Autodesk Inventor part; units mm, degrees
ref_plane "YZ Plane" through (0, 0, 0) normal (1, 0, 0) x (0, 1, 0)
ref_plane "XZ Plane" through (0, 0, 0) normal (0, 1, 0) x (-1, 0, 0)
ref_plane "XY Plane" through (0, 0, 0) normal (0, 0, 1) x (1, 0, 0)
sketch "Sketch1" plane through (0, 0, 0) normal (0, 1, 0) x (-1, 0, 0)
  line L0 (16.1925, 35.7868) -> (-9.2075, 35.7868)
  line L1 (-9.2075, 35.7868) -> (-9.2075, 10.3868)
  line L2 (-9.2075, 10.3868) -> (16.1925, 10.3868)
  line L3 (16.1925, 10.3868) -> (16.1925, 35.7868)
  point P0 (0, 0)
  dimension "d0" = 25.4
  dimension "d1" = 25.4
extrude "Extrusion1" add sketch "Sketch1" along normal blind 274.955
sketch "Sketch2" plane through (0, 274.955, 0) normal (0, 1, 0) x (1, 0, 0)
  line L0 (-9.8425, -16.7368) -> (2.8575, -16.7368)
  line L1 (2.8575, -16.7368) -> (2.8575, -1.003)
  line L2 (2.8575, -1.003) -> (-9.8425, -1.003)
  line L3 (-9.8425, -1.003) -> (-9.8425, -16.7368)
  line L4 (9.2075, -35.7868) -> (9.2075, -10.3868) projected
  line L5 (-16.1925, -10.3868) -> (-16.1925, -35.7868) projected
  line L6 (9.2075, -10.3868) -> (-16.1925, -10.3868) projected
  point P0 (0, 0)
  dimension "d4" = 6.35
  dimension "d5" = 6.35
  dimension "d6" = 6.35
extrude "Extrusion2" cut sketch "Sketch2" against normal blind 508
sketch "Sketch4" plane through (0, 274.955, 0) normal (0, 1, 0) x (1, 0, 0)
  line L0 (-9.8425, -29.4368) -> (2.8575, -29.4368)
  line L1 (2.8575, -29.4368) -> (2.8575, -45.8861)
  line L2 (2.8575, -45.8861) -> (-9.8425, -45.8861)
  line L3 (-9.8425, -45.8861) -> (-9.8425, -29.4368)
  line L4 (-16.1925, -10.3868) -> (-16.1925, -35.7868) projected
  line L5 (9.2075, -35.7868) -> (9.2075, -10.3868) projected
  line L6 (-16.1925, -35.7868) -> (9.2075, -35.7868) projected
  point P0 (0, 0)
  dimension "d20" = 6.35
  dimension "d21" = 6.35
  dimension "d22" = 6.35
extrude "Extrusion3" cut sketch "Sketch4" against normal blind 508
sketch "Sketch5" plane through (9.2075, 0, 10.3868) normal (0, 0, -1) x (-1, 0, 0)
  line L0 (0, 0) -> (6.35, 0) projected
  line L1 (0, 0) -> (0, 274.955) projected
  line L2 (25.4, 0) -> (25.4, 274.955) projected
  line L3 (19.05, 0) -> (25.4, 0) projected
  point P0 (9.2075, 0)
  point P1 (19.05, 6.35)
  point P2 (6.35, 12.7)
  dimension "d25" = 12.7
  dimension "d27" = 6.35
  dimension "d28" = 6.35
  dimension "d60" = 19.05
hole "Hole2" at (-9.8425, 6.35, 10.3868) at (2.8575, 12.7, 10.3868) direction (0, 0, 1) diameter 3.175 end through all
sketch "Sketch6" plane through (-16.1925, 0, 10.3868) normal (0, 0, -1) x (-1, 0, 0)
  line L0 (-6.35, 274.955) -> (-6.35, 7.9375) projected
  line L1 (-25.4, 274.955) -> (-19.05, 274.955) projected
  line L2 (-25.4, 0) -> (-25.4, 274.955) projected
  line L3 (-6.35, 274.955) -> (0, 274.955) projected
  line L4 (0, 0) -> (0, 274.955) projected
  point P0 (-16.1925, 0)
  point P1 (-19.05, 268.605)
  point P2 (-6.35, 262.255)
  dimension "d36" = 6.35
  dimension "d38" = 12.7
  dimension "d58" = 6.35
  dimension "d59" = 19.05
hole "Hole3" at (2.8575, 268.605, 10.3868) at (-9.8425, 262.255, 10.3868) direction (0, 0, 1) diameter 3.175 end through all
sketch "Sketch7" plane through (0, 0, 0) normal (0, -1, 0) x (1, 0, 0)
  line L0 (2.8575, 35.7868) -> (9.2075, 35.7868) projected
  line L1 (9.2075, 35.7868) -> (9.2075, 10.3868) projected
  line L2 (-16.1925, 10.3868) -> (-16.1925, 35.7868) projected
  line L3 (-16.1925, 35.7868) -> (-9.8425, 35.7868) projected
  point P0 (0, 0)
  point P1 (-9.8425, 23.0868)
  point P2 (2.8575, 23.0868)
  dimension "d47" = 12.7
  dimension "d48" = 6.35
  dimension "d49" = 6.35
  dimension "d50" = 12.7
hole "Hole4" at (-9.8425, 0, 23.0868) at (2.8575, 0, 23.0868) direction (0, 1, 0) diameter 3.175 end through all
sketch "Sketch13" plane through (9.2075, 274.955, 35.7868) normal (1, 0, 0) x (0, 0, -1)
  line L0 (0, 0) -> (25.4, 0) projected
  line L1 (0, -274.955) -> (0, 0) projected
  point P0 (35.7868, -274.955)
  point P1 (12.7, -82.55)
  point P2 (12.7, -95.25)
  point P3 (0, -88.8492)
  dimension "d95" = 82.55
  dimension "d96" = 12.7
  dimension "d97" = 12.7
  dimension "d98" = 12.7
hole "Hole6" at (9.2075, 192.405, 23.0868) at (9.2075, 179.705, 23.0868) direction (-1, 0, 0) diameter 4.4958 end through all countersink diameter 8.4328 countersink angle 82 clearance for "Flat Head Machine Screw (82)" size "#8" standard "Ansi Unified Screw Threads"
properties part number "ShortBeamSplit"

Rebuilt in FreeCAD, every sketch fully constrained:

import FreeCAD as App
import Part
import Sketcher
from FreeCAD import Vector
Q = App.Units.Quantity

doc = App.newDocument("Part")
params = doc.addObject("Spreadsheet::Sheet", "Params")
for row, (alias, value) in enumerate([
    ("sketch1_width", "1 in"),
    ("pad1_length", "10.825 in"),
    ("sketch2_width", "0.5 in"),
    ("pocket1_length", "20 in"),
    ("sketch3_width", "0.5 in"),
    ("pocket2_length", "20 in"),
    ("sketch4_diameter", "0.125 in"),
    ("hole_diameter", "0.125 in"),
    ("sketch5_diameter", "0.125 in"),
    ("hole2_diameter", "0.125 in"),
    ("sketch6_diameter", "0.125 in"),
    ("hole3_diameter", "0.125 in"),
    ("sketch7_diameter", "0.177 in"),
    ("hole4_diameter", "0.177 in"),
    ("hole4_csink_diameter", "0.332 in"),
], start=1):
    params.set(f"A{row}", alias)
    params.set(f"B{row}", "=" + value)
    params.setAlias(f"B{row}", alias)

body = doc.addObject("PartDesign::Body", "Body")

# Sketch on XZ plane
sketch1 = body.newObject("Sketcher::SketchObject", "Sketch")
sketch1.AttachmentSupport = (doc.getObject("XZ_Plane"), [""])
sketch1.MapMode = "FlatFace"
sketch1.addGeometry(Part.LineSegment(Vector(-16.1925, 10.3868, 0), Vector(-16.1925, 35.7868, 0)), False)
sketch1.addGeometry(Part.LineSegment(Vector(-16.1925, 35.7868, 0), Vector(9.2075, 35.7868, 0)), False)
sketch1.addGeometry(Part.LineSegment(Vector(9.2075, 35.7868, 0), Vector(9.2075, 10.3868, 0)), False)
sketch1.addGeometry(Part.LineSegment(Vector(9.2075, 10.3868, 0), Vector(-16.1925, 10.3868, 0)), False)
sketch1.addConstraint(Sketcher.Constraint("Coincident", 0, 2, 1, 1))
sketch1.addConstraint(Sketcher.Constraint("Coincident", 1, 2, 2, 1))
sketch1.addConstraint(Sketcher.Constraint("Coincident", 2, 2, 3, 1))
sketch1.addConstraint(Sketcher.Constraint("Coincident", 3, 2, 0, 1))
sketch1.addConstraint(Sketcher.Constraint("Vertical", 0))
sketch1.addConstraint(Sketcher.Constraint("Horizontal", 1))
sketch1.addConstraint(Sketcher.Constraint("Vertical", 2))
sketch1.addConstraint(Sketcher.Constraint("Horizontal", 3))
sketch1.addConstraint(Sketcher.Constraint("Equal", 3, 0))
sketch1.addConstraint(Sketcher.Constraint("DistanceX", 1, 1, 1, 2, Q("1 in")))
sketch1.addConstraint(Sketcher.Constraint("DistanceX", 0, 2, -1, 1, Q("0.6375 in")))
sketch1.addConstraint(Sketcher.Constraint("DistanceY", -1, 1, 0, 2, 35.7868))
sketch1.setExpression("Constraints[9]", "Params.sketch1_width")
pad1 = body.newObject("PartDesign::Pad", "Pad")
pad1.Profile = sketch1
pad1.setExpression("Length", "Params.pad1_length")
pad1.Reversed = True

# Sketch on XZ plane
sketch2 = body.newObject("Sketcher::SketchObject", "Sketch001")
sketch2.AttachmentSupport = (doc.getObject("XZ_Plane"), [""])
sketch2.MapMode = "FlatFace"
sketch2.AttachmentOffset = App.Placement(Vector(0, 0, -10.825 * 25.4), App.Rotation())
sketch2.addGeometry(Part.LineSegment(Vector(-9.8425, 16.7368, 0), Vector(2.8575, 16.7368, 0)), False)
sketch2.addGeometry(Part.LineSegment(Vector(2.8575, 16.7368, 0), Vector(2.8575, 1.003, 0)), False)
sketch2.addGeometry(Part.LineSegment(Vector(2.8575, 1.003, 0), Vector(-9.8425, 1.003, 0)), False)
sketch2.addGeometry(Part.LineSegment(Vector(-9.8425, 1.003, 0), Vector(-9.8425, 16.7368, 0)), False)
sketch2.addConstraint(Sketcher.Constraint("Coincident", 0, 2, 1, 1))
sketch2.addConstraint(Sketcher.Constraint("Coincident", 1, 2, 2, 1))
sketch2.addConstraint(Sketcher.Constraint("Coincident", 2, 2, 3, 1))
sketch2.addConstraint(Sketcher.Constraint("Coincident", 3, 2, 0, 1))
sketch2.addConstraint(Sketcher.Constraint("Horizontal", 0))
sketch2.addConstraint(Sketcher.Constraint("Vertical", 1))
sketch2.addConstraint(Sketcher.Constraint("Horizontal", 2))
sketch2.addConstraint(Sketcher.Constraint("Vertical", 3))
sketch2.addConstraint(Sketcher.Constraint("DistanceX", 0, 1, 0, 2, Q("0.5 in")))
sketch2.addConstraint(Sketcher.Constraint("DistanceY", 1, 2, 1, 1, 15.7338))
sketch2.addConstraint(Sketcher.Constraint("DistanceX", -1, 1, 0, 2, Q("0.1125 in")))
sketch2.addConstraint(Sketcher.Constraint("DistanceY", -1, 1, 1, 2, Q("0.0395 in")))
sketch2.setExpression("Constraints[8]", "Params.sketch2_width")
pocket1 = body.newObject("PartDesign::Pocket", "Pocket")
pocket1.Profile = sketch2
pocket1.setExpression("Length", "Params.pocket1_length")
pocket1.Reversed = True

# Sketch on XZ plane
sketch3 = body.newObject("Sketcher::SketchObject", "Sketch002")
sketch3.AttachmentSupport = (doc.getObject("XZ_Plane"), [""])
sketch3.MapMode = "FlatFace"
sketch3.AttachmentOffset = App.Placement(Vector(0, 0, -10.825 * 25.4), App.Rotation())
sketch3.addGeometry(Part.LineSegment(Vector(2.8575, 29.4368, 0), Vector(-9.8425, 29.4368, 0)), False)
sketch3.addGeometry(Part.LineSegment(Vector(-9.8425, 29.4368, 0), Vector(-9.8425, 45.8861, 0)), False)
sketch3.addGeometry(Part.LineSegment(Vector(-9.8425, 45.8861, 0), Vector(2.8575, 45.8861, 0)), False)
sketch3.addGeometry(Part.LineSegment(Vector(2.8575, 45.8861, 0), Vector(2.8575, 29.4368, 0)), False)
sketch3.addConstraint(Sketcher.Constraint("Coincident", 0, 2, 1, 1))
sketch3.addConstraint(Sketcher.Constraint("Coincident", 1, 2, 2, 1))
sketch3.addConstraint(Sketcher.Constraint("Coincident", 2, 2, 3, 1))
sketch3.addConstraint(Sketcher.Constraint("Coincident", 3, 2, 0, 1))
sketch3.addConstraint(Sketcher.Constraint("Horizontal", 0))
sketch3.addConstraint(Sketcher.Constraint("Vertical", 1))
sketch3.addConstraint(Sketcher.Constraint("Horizontal", 2))
sketch3.addConstraint(Sketcher.Constraint("Vertical", 3))
sketch3.addConstraint(Sketcher.Constraint("DistanceX", 0, 2, 0, 1, Q("0.5 in")))
sketch3.addConstraint(Sketcher.Constraint("DistanceY", 1, 1, 1, 2, Q("0.6476 in")))
sketch3.addConstraint(Sketcher.Constraint("DistanceX", 0, 2, -1, 1, Q("0.3875 in")))
sketch3.addConstraint(Sketcher.Constraint("DistanceY", -1, 1, 0, 2, 29.4368))
sketch3.setExpression("Constraints[8]", "Params.sketch3_width")
pocket2 = body.newObject("PartDesign::Pocket", "Pocket001")
pocket2.Profile = sketch3
pocket2.setExpression("Length", "Params.pocket2_length")
pocket2.Reversed = True

# Sketch on XY plane
sketch4 = body.newObject("Sketcher::SketchObject", "Sketch003")
sketch4.AttachmentSupport = (doc.getObject("XY_Plane"), [""])
sketch4.MapMode = "FlatFace"
sketch4.AttachmentOffset = App.Placement(Vector(0, 0, 10.3868), App.Rotation())
sketch4.addGeometry(Part.Circle(Vector(-9.8425, 6.35, 0), Vector(0, 0, 1), 1.5875), False)
sketch4.addGeometry(Part.Circle(Vector(2.8575, 12.7, 0), Vector(0, 0, 1), 1.5875), False)
sketch4.addConstraint(Sketcher.Constraint("Equal", 0, 1))
sketch4.addConstraint(Sketcher.Constraint("Diameter", 0, Q("0.125 in")))
sketch4.addConstraint(Sketcher.Constraint("DistanceY", -1, 1, 1, 3, Q("0.5 in")))
sketch4.addConstraint(Sketcher.Constraint("DistanceX", 0, 3, 1, 3, Q("0.5 in")))
sketch4.addConstraint(Sketcher.Constraint("DistanceY", -1, 1, 0, 3, Q("0.25 in")))
sketch4.addConstraint(Sketcher.Constraint("DistanceX", 0, 3, -1, 1, Q("0.3875 in")))
sketch4.setExpression("Constraints[1]", "Params.sketch4_diameter")
doc.recompute()
hole = body.newObject("PartDesign::Hole", "Hole")
hole.Profile = sketch4
hole.ThreadType = "None"
hole.setExpression("Diameter", "Params.hole_diameter")
hole.DepthType = "ThroughAll"
hole.Reversed = True

# Sketch on XY plane
sketch5 = body.newObject("Sketcher::SketchObject", "Sketch004")
sketch5.AttachmentSupport = (doc.getObject("XY_Plane"), [""])
sketch5.MapMode = "FlatFace"
sketch5.AttachmentOffset = App.Placement(Vector(0, 0, 10.3868), App.Rotation())
sketch5.addGeometry(Part.Circle(Vector(2.8575, 268.605, 0), Vector(0, 0, 1), 1.5875), False)
sketch5.addGeometry(Part.Circle(Vector(-9.8425, 262.255, 0), Vector(0, 0, 1), 1.5875), False)
sketch5.addConstraint(Sketcher.Constraint("Equal", 0, 1))
sketch5.addConstraint(Sketcher.Constraint("Diameter", 0, Q("0.125 in")))
sketch5.addConstraint(Sketcher.Constraint("DistanceX", 1, 3, 0, 3, Q("0.5 in")))
sketch5.addConstraint(Sketcher.Constraint("DistanceY", 1, 3, 0, 3, Q("0.25 in")))
sketch5.addConstraint(Sketcher.Constraint("DistanceY", -1, 1, 0, 3, Q("10.575 in")))
sketch5.addConstraint(Sketcher.Constraint("DistanceX", -1, 1, 0, 3, Q("0.1125 in")))
sketch5.setExpression("Constraints[1]", "Params.sketch5_diameter")
doc.recompute()
hole2 = body.newObject("PartDesign::Hole", "Hole001")
hole2.Profile = sketch5
hole2.ThreadType = "None"
hole2.setExpression("Diameter", "Params.hole2_diameter")
hole2.DepthType = "ThroughAll"
hole2.Reversed = True

# Sketch on XZ plane
sketch6 = body.newObject("Sketcher::SketchObject", "Sketch005")
sketch6.AttachmentSupport = (doc.getObject("XZ_Plane"), [""])
sketch6.MapMode = "FlatFace"
sketch6.addGeometry(Part.Circle(Vector(-9.8425, 23.0868, 0), Vector(0, 0, 1), 1.5875), False)
sketch6.addGeometry(Part.Circle(Vector(2.8575, 23.0868, 0), Vector(0, 0, 1), 1.5875), False)
sketch6.addConstraint(Sketcher.Constraint("Equal", 0, 1))
sketch6.addConstraint(Sketcher.Constraint("Horizontal", 0, 3, 1, 3))
sketch6.addConstraint(Sketcher.Constraint("Diameter", 0, Q("0.125 in")))
sketch6.addConstraint(Sketcher.Constraint("DistanceX", 0, 3, 1, 3, Q("0.5 in")))
sketch6.addConstraint(Sketcher.Constraint("DistanceX", 0, 3, -1, 1, Q("0.3875 in")))
sketch6.addConstraint(Sketcher.Constraint("DistanceY", -1, 1, 0, 3, 23.0868))
sketch6.setExpression("Constraints[2]", "Params.sketch6_diameter")
doc.recompute()
hole3 = body.newObject("PartDesign::Hole", "Hole002")
hole3.Profile = sketch6
hole3.ThreadType = "None"
hole3.setExpression("Diameter", "Params.hole3_diameter")
hole3.DepthType = "ThroughAll"

# Sketch on YZ plane
sketch7 = body.newObject("Sketcher::SketchObject", "Sketch006")
sketch7.AttachmentSupport = (doc.getObject("YZ_Plane"), [""])
sketch7.MapMode = "FlatFace"
sketch7.AttachmentOffset = App.Placement(Vector(0, 0, 0.3625 * 25.4), App.Rotation())
sketch7.addGeometry(Part.Circle(Vector(192.405, 23.0868, 0), Vector(0, 0, 1), 2.2479), False)
sketch7.addGeometry(Part.Circle(Vector(179.705, 23.0868, 0), Vector(0, 0, 1), 2.2479), False)
sketch7.addConstraint(Sketcher.Constraint("Equal", 0, 1))
sketch7.addConstraint(Sketcher.Constraint("Horizontal", 0, 3, 1, 3))
sketch7.addConstraint(Sketcher.Constraint("Diameter", 0, Q("0.177 in")))
sketch7.addConstraint(Sketcher.Constraint("DistanceX", 1, 3, 0, 3, Q("0.5 in")))
sketch7.addConstraint(Sketcher.Constraint("DistanceX", -1, 1, 0, 3, Q("7.575 in")))
sketch7.addConstraint(Sketcher.Constraint("DistanceY", -1, 1, 0, 3, 23.0868))
sketch7.setExpression("Constraints[2]", "Params.sketch7_diameter")
doc.recompute()
hole4 = body.newObject("PartDesign::Hole", "Hole003")
hole4.Profile = sketch7
hole4.ThreadType = "None"
hole4.setExpression("Diameter", "Params.hole4_diameter")
hole4.DepthType = "ThroughAll"
hole4.HoleCutType = "Countersink"
hole4.setExpression("HoleCutDiameter", "Params.hole4_csink_diameter")
hole4.HoleCutCountersinkAngle = 82

doc.recompute()
